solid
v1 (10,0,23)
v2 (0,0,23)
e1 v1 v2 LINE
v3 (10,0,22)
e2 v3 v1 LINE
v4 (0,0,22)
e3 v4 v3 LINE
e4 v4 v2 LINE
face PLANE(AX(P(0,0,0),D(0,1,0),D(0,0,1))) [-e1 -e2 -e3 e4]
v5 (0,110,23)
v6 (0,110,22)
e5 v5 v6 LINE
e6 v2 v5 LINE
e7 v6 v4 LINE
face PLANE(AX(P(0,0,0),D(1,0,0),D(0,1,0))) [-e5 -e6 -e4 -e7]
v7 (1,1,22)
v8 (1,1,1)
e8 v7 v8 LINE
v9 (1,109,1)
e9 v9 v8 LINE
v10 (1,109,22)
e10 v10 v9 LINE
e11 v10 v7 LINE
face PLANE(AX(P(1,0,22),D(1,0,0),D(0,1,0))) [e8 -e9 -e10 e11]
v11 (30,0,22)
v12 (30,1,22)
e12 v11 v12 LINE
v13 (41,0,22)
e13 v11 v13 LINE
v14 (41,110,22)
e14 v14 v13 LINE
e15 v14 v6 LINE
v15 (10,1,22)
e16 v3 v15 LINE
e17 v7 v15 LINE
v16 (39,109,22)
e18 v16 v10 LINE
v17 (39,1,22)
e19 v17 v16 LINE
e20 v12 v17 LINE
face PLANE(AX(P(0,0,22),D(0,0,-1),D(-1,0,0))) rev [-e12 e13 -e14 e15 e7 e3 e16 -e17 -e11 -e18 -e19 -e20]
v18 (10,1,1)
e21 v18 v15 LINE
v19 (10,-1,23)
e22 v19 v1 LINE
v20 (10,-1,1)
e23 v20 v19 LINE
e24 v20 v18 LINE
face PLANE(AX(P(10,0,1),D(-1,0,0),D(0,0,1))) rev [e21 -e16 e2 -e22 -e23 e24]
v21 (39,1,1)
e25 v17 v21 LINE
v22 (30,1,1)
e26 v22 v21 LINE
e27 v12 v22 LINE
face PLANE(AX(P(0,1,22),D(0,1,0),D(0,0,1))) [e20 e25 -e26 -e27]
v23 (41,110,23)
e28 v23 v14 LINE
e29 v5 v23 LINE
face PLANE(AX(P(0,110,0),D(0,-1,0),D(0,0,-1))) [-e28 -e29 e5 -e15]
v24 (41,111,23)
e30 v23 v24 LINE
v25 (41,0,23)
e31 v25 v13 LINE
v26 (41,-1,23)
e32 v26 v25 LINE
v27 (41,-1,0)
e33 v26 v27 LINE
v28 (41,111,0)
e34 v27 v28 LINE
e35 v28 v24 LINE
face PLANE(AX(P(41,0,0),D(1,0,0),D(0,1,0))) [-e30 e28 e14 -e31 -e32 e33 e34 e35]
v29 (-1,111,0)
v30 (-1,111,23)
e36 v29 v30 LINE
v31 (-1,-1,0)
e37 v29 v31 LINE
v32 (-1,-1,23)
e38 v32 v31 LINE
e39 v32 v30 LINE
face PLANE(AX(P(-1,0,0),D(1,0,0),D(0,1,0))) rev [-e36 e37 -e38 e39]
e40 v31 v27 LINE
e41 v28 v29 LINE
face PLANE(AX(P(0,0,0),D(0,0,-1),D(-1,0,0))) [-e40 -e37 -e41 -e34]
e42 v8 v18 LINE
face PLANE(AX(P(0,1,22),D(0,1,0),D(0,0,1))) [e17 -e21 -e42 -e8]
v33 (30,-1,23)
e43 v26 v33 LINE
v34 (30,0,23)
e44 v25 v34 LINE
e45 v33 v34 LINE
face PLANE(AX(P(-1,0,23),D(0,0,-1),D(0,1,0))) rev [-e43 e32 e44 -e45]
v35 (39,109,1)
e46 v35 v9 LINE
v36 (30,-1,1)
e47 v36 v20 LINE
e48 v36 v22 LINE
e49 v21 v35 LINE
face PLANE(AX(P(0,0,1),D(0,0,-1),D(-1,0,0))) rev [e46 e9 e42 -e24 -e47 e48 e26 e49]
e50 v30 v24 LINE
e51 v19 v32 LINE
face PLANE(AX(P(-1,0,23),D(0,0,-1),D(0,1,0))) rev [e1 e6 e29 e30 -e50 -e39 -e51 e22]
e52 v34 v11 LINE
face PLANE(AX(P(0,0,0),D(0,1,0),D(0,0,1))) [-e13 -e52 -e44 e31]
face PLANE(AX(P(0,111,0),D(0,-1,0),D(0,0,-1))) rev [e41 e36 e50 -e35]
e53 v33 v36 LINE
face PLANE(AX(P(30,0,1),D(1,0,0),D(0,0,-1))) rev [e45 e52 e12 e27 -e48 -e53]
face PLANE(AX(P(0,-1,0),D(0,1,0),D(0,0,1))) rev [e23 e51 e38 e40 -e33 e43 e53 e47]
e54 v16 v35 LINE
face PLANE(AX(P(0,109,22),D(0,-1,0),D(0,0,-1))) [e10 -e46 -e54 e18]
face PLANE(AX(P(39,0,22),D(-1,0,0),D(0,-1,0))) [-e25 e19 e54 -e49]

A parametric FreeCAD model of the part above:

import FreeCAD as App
import Part
import Sketcher
Q = App.Units.Quantity


def faces_at(feature, points):
    """Names of the faces that lie closest to the given points."""
    faces = feature.Shape.Faces
    near = lambda p: min(range(len(faces)), key=lambda i: faces[i].distToShape(Part.Vertex(*p))[0])
    return sorted({f"Face{near(p) + 1}" for p in points})

doc = App.newDocument("Part")
body = doc.addObject("PartDesign::Body", "Body")

# Sketch on XY plane
sketch1 = doc.addObject("Sketcher::SketchObject", "Sketch")
body.addObject(sketch1)
sketch1.AttachmentSupport = (doc.XY_Plane, [""])
sketch1.MapMode = "FlatFace"
sketch1.addGeometry([
    Part.LineSegment(App.Vector(0, 110, 0), App.Vector(0, 0, 0)),
    Part.LineSegment(App.Vector(0, 0, 0), App.Vector(40, 0, 0)),
    Part.LineSegment(App.Vector(40, 0, 0), App.Vector(40, 110, 0)),
    Part.LineSegment(App.Vector(40, 110, 0), App.Vector(0, 110, 0)),
], False)
sketch1.addConstraint([
    Sketcher.Constraint("Coincident", 0, 2, 1, 1),
    Sketcher.Constraint("Coincident", 1, 2, 2, 1),
    Sketcher.Constraint("Coincident", 2, 2, 3, 1),
    Sketcher.Constraint("Coincident", 3, 2, 0, 1),
    Sketcher.Constraint("Vertical", 0),
    Sketcher.Constraint("Horizontal", 1),
    Sketcher.Constraint("Vertical", 2),
    Sketcher.Constraint("Horizontal", 3),
    Sketcher.Constraint("Coincident", 0, 2, -1, 1),
    Sketcher.Constraint("DistanceX", 1, 1, 1, 2, Q("40 mm")),
    Sketcher.Constraint("DistanceY", 0, 2, 0, 1, Q("110 mm")),
])
pad1 = doc.addObject("PartDesign::Pad", "Pad")
body.addObject(pad1)
pad1.Profile = sketch1
pad1.Length = 22
doc.recompute()

thickness = doc.addObject("PartDesign::Thickness", "Thickness")
body.addObject(thickness)
thickness.Base = (pad1, faces_at(pad1, [(20, 55, 22)]))
thickness.Value = 1
thickness.Reversed = True
thickness.Join = "Intersection"

# Sketch on XZ plane
sketch2 = doc.addObject("Sketcher::SketchObject", "Sketch001")
body.addObject(sketch2)
sketch2.AttachmentSupport = (doc.XZ_Plane, [""])
sketch2.MapMode = "FlatFace"
sketch2.AttachmentOffset = App.Placement(App.Vector(0, 0, -1), App.Rotation())
sketch2.addGeometry([
    Part.LineSegment(App.Vector(10, 1, 0), App.Vector(10, 22, 0)),
    Part.LineSegment(App.Vector(10, 22, 0), App.Vector(30, 22, 0)),
    Part.LineSegment(App.Vector(30, 22, 0), App.Vector(30, 1, 0)),
    Part.LineSegment(App.Vector(30, 1, 0), App.Vector(10, 1, 0)),
], False)
sketch2.addConstraint([
    Sketcher.Constraint("Coincident", 0, 2, 1, 1),
    Sketcher.Constraint("Coincident", 1, 2, 2, 1),
    Sketcher.Constraint("Coincident", 2, 2, 3, 1),
    Sketcher.Constraint("Coincident", 3, 2, 0, 1),
    Sketcher.Constraint("Vertical", 0),
    Sketcher.Constraint("Horizontal", 1),
    Sketcher.Constraint("Vertical", 2),
    Sketcher.Constraint("Horizontal", 3),
    Sketcher.Constraint("DistanceX", 1, 1, 1, 2, Q("20 mm")),
    Sketcher.Constraint("DistanceY", 0, 1, 0, 2, Q("21 mm")),
    Sketcher.Constraint("DistanceX", -1, 1, 0, 2, Q("10 mm")),
    Sketcher.Constraint("DistanceY", -1, 1, 0, 2, Q("22 mm")),
])
pocket1 = doc.addObject("PartDesign::Pocket", "Pocket")
body.addObject(pocket1)
pocket1.Profile = sketch2
pocket1.Type = "ThroughAll"
pocket1.Reversed = True

# Sketch on YZ plane
sketch3 = doc.addObject("Sketcher::SketchObject", "Sketch002")
body.addObject(sketch3)
sketch3.AttachmentSupport = (doc.YZ_Plane, [""])
sketch3.MapMode = "FlatFace"
sketch3.addGeometry([
    Part.LineSegment(App.Vector(110, 0, 0), App.Vector(0, 0, 0)),
    Part.LineSegment(App.Vector(0, 0, 0), App.Vector(0, 23, 0)),
    Part.LineSegment(App.Vector(0, 23, 0), App.Vector(110, 23, 0)),
    Part.LineSegment(App.Vector(110, 23, 0), App.Vector(110, 0, 0)),
], False)
sketch3.addConstraint([
    Sketcher.Constraint("Coincident", 0, 2, 1, 1),
    Sketcher.Constraint("Coincident", 1, 2, 2, 1),
    Sketcher.Constraint("Coincident", 2, 2, 3, 1),
    Sketcher.Constraint("Coincident", 3, 2, 0, 1),
    Sketcher.Constraint("Horizontal", 0),
    Sketcher.Constraint("Vertical", 1),
    Sketcher.Constraint("Horizontal", 2),
    Sketcher.Constraint("Vertical", 3),
    Sketcher.Constraint("Coincident", 0, 2, -1, 1),
    Sketcher.Constraint("DistanceX", 0, 2, 0, 1, Q("110 mm")),
    Sketcher.Constraint("DistanceY", 1, 1, 1, 2, Q("23 mm")),
])
pad2 = doc.addObject("PartDesign::Pad", "Pad001")
body.addObject(pad2)
pad2.Profile = sketch3
pad2.Length = 1
pad2.Reversed = True

# Sketch on XZ plane
sketch4 = doc.addObject("Sketcher::SketchObject", "Sketch003")
body.addObject(sketch4)
sketch4.AttachmentSupport = (doc.XZ_Plane, [""])
sketch4.MapMode = "FlatFace"
sketch4.addGeometry([
    Part.LineSegment(App.Vector(-1, 23, 0), App.Vector(-1, 0, 0)),
    Part.LineSegment(App.Vector(-1, 0, 0), App.Vector(40, 0, 0)),
    Part.LineSegment(App.Vector(40, 0, 0), App.Vector(40, 23, 0)),
    Part.LineSegment(App.Vector(40, 23, 0), App.Vector(-1, 23, 0)),
], False)
sketch4.addConstraint([
    Sketcher.Constraint("Coincident", 0, 2, 1, 1),
    Sketcher.Constraint("Coincident", 1, 2, 2, 1),
    Sketcher.Constraint("Coincident", 2, 2, 3, 1),
    Sketcher.Constraint("Coincident", 3, 2, 0, 1),
    Sketcher.Constraint("Vertical", 0),
    Sketcher.Constraint("Horizontal", 1),
    Sketcher.Constraint("Vertical", 2),
    Sketcher.Constraint("Horizontal", 3),
    Sketcher.Constraint("PointOnObject", 0, 2, -1),
    Sketcher.Constraint("DistanceX", 1, 1, 1, 2, Q("41 mm")),
    Sketcher.Constraint("DistanceY", 0, 2, 0, 1, Q("23 mm")),
    Sketcher.Constraint("DistanceX", 0, 2, -1, 1, Q("1 mm")),
])
pad3 = doc.addObject("PartDesign::Pad", "Pad002")
body.addObject(pad3)
pad3.Profile = sketch4
pad3.Length = 1

# Sketch on XZ plane
sketch5 = doc.addObject("Sketcher::SketchObject", "Sketch004")
body.addObject(sketch5)
sketch5.AttachmentSupport = (doc.XZ_Plane, [""])
sketch5.MapMode = "FlatFace"
sketch5.addGeometry([
    Part.LineSegment(App.Vector(10, 1, 0), App.Vector(10, 23, 0)),
    Part.LineSegment(App.Vector(10, 23, 0), App.Vector(30, 23, 0)),
    Part.LineSegment(App.Vector(30, 23, 0), App.Vector(30, 1, 0)),
    Part.LineSegment(App.Vector(30, 1, 0), App.Vector(10, 1, 0)),
], False)
sketch5.addConstraint([
    Sketcher.Constraint("Coincident", 0, 2, 1, 1),
    Sketcher.Constraint("Coincident", 1, 2, 2, 1),
    Sketcher.Constraint("Coincident", 2, 2, 3, 1),
    Sketcher.Constraint("Coincident", 3, 2, 0, 1),
    Sketcher.Constraint("Vertical", 0),
    Sketcher.Constraint("Horizontal", 1),
    Sketcher.Constraint("Vertical", 2),
    Sketcher.Constraint("Horizontal", 3),
    Sketcher.Constraint("DistanceX", 1, 1, 1, 2, Q("20 mm")),
    Sketcher.Constraint("DistanceY", 0, 1, 0, 2, Q("22 mm")),
    Sketcher.Constraint("DistanceX", -1, 1, 0, 2, Q("10 mm")),
    Sketcher.Constraint("DistanceY", -1, 1, 0, 2, Q("23 mm")),
])
pocket2 = doc.addObject("PartDesign::Pocket", "Pocket001")
body.addObject(pocket2)
pocket2.Profile = sketch5
pocket2.Type = "ThroughAll"
pocket2.Reversed = True

# Sketch on XZ plane
sketch6 = doc.addObject("Sketcher::SketchObject", "Sketch005")
body.addObject(sketch6)
sketch6.AttachmentSupport = (doc.XZ_Plane, [""])
sketch6.MapMode = "FlatFace"
sketch6.AttachmentOffset = App.Placement(App.Vector(0, 0, -110), App.Rotation())
sketch6.addGeometry([
    Part.LineSegment(App.Vector(-1, 0, 0), App.Vector(-1, 23, 0)),
    Part.LineSegment(App.Vector(-1, 23, 0), App.Vector(40, 23, 0)),
    Part.LineSegment(App.Vector(40, 23, 0), App.Vector(40, 0, 0)),
    Part.LineSegment(App.Vector(40, 0, 0), App.Vector(-1, 0, 0)),
], False)
sketch6.addConstraint([
    Sketcher.Constraint("Coincident", 0, 2, 1, 1),
    Sketcher.Constraint("Coincident", 1, 2, 2, 1),
    Sketcher.Constraint("Coincident", 2, 2, 3, 1),
    Sketcher.Constraint("Coincident", 3, 2, 0, 1),
    Sketcher.Constraint("Vertical", 0),
    Sketcher.Constraint("Horizontal", 1),
    Sketcher.Constraint("Vertical", 2),
    Sketcher.Constraint("Horizontal", 3),
    Sketcher.Constraint("PointOnObject", 2, 2, -1),
    Sketcher.Constraint("DistanceX", 1, 1, 1, 2, Q("41 mm")),
    Sketcher.Constraint("DistanceY", 0, 1, 0, 2, Q("23 mm")),
    Sketcher.Constraint("DistanceX", 0, 2, -1, 1, Q("1 mm")),
])
pad4 = doc.addObject("PartDesign::Pad", "Pad003")
body.addObject(pad4)
pad4.Profile = sketch6
pad4.Length = 1
pad4.Reversed = True

# Sketch on YZ plane
sketch7 = doc.addObject("Sketcher::SketchObject", "Sketch006")
body.addObject(sketch7)
sketch7.AttachmentSupport = (doc.YZ_Plane, [""])
sketch7.MapMode = "FlatFace"
sketch7.AttachmentOffset = App.Placement(App.Vector(0, 0, 40), App.Rotation())
sketch7.addGeometry([
    Part.LineSegment(App.Vector(111, 22, 0), App.Vector(-1, 22, 0)),
    Part.LineSegment(App.Vector(-1, 22, 0), App.Vector(-1, 0, 0)),
    Part.LineSegment(App.Vector(-1, 0, 0), App.Vector(111, 0, 0)),
    Part.LineSegment(App.Vector(111, 0, 0), App.Vector(111, 22, 0)),
], False)
sketch7.addConstraint([
    Sketcher.Constraint("Coincident", 0, 2, 1, 1),
    Sketcher.Constraint("Coincident", 1, 2, 2, 1),
    Sketcher.Constraint("Coincident", 2, 2, 3, 1),
    Sketcher.Constraint("Coincident", 3, 2, 0, 1),
    Sketcher.Constraint("Horizontal", 0),
    Sketcher.Constraint("Vertical", 1),
    Sketcher.Constraint("Horizontal", 2),
    Sketcher.Constraint("Vertical", 3),
    Sketcher.Constraint("PointOnObject", 1, 2, -1),
    Sketcher.Constraint("DistanceX", 0, 2, 0, 1, Q("112 mm")),
    Sketcher.Constraint("DistanceY", 1, 2, 1, 1, Q("22 mm")),
    Sketcher.Constraint("DistanceX", 0, 2, -1, 1, Q("1 mm")),
])
pad5 = doc.addObject("PartDesign::Pad", "Pad004")
body.addObject(pad5)
pad5.Profile = sketch7
pad5.Length = 1

# Sketch on XY plane
sketch8 = doc.addObject("Sketcher::SketchObject", "Sketch007")
body.addObject(sketch8)
sketch8.AttachmentSupport = (doc.XY_Plane, [""])
sketch8.MapMode = "FlatFace"
sketch8.AttachmentOffset = App.Placement(App.Vector(0, 0, 22), App.Rotation())
sketch8.addGeometry([
    Part.LineSegment(App.Vector(40, 111, 0), App.Vector(40, 110, 0)),
    Part.LineSegment(App.Vector(40, 110, 0), App.Vector(41, 110, 0)),
    Part.LineSegment(App.Vector(41, 110, 0), App.Vector(41, 111, 0)),
    Part.LineSegment(App.Vector(41, 111, 0), App.Vector(40, 111, 0)),
], False)
sketch8.addConstraint([
    Sketcher.Constraint("Coincident", 0, 2, 1, 1),
    Sketcher.Constraint("Coincident", 1, 2, 2, 1),
    Sketcher.Constraint("Coincident", 2, 2, 3, 1),
    Sketcher.Constraint("Coincident", 3, 2, 0, 1),
    Sketcher.Constraint("Vertical", 0),
    Sketcher.Constraint("Horizontal", 1),
    Sketcher.Constraint("Vertical", 2),
    Sketcher.Constraint("Horizontal", 3),
    Sketcher.Constraint("Equal", 3, 0),
    Sketcher.Constraint("DistanceX", 1, 1, 1, 2, Q("1 mm")),
    Sketcher.Constraint("DistanceX", -1, 1, 0, 2, Q("40 mm")),
    Sketcher.Constraint("DistanceY", -1, 1, 0, 2, Q("110 mm")),
])
pad6 = doc.addObject("PartDesign::Pad", "Pad005")
body.addObject(pad6)
pad6.Profile = sketch8
pad6.Length = 1

# Sketch on XY plane
sketch9 = doc.addObject("Sketcher::SketchObject", "Sketch008")
body.addObject(sketch9)
sketch9.AttachmentSupport = (doc.XY_Plane, [""])
sketch9.MapMode = "FlatFace"
sketch9.AttachmentOffset = App.Placement(App.Vector(0, 0, 22), App.Rotation())
sketch9.addGeometry([
    Part.LineSegment(App.Vector(40, 0, 0), App.Vector(40, -1, 0)),
    Part.LineSegment(App.Vector(40, -1, 0), App.Vector(41, -1, 0)),
    Part.LineSegment(App.Vector(41, -1, 0), App.Vector(41, 0, 0)),
    Part.LineSegment(App.Vector(41, 0, 0), App.Vector(40, 0, 0)),
], False)
sketch9.addConstraint([
    Sketcher.Constraint("Coincident", 0, 2, 1, 1),
    Sketcher.Constraint("Coincident", 1, 2, 2, 1),
    Sketcher.Constraint("Coincident", 2, 2, 3, 1),
    Sketcher.Constraint("Coincident", 3, 2, 0, 1),
    Sketcher.Constraint("Vertical", 0),
    Sketcher.Constraint("Horizontal", 1),
    Sketcher.Constraint("Vertical", 2),
    Sketcher.Constraint("Horizontal", 3),
    Sketcher.Constraint("PointOnObject", 2, 2, -1),
    Sketcher.Constraint("Equal", 3, 0),
    Sketcher.Constraint("DistanceX", 1, 1, 1, 2, Q("1 mm")),
    Sketcher.Constraint("DistanceX", -1, 1, 0, 2, Q("40 mm")),
])
pad7 = doc.addObject("PartDesign::Pad", "Pad006")
body.addObject(pad7)
pad7.Profile = sketch9
pad7.Length = 1

doc.recompute()
